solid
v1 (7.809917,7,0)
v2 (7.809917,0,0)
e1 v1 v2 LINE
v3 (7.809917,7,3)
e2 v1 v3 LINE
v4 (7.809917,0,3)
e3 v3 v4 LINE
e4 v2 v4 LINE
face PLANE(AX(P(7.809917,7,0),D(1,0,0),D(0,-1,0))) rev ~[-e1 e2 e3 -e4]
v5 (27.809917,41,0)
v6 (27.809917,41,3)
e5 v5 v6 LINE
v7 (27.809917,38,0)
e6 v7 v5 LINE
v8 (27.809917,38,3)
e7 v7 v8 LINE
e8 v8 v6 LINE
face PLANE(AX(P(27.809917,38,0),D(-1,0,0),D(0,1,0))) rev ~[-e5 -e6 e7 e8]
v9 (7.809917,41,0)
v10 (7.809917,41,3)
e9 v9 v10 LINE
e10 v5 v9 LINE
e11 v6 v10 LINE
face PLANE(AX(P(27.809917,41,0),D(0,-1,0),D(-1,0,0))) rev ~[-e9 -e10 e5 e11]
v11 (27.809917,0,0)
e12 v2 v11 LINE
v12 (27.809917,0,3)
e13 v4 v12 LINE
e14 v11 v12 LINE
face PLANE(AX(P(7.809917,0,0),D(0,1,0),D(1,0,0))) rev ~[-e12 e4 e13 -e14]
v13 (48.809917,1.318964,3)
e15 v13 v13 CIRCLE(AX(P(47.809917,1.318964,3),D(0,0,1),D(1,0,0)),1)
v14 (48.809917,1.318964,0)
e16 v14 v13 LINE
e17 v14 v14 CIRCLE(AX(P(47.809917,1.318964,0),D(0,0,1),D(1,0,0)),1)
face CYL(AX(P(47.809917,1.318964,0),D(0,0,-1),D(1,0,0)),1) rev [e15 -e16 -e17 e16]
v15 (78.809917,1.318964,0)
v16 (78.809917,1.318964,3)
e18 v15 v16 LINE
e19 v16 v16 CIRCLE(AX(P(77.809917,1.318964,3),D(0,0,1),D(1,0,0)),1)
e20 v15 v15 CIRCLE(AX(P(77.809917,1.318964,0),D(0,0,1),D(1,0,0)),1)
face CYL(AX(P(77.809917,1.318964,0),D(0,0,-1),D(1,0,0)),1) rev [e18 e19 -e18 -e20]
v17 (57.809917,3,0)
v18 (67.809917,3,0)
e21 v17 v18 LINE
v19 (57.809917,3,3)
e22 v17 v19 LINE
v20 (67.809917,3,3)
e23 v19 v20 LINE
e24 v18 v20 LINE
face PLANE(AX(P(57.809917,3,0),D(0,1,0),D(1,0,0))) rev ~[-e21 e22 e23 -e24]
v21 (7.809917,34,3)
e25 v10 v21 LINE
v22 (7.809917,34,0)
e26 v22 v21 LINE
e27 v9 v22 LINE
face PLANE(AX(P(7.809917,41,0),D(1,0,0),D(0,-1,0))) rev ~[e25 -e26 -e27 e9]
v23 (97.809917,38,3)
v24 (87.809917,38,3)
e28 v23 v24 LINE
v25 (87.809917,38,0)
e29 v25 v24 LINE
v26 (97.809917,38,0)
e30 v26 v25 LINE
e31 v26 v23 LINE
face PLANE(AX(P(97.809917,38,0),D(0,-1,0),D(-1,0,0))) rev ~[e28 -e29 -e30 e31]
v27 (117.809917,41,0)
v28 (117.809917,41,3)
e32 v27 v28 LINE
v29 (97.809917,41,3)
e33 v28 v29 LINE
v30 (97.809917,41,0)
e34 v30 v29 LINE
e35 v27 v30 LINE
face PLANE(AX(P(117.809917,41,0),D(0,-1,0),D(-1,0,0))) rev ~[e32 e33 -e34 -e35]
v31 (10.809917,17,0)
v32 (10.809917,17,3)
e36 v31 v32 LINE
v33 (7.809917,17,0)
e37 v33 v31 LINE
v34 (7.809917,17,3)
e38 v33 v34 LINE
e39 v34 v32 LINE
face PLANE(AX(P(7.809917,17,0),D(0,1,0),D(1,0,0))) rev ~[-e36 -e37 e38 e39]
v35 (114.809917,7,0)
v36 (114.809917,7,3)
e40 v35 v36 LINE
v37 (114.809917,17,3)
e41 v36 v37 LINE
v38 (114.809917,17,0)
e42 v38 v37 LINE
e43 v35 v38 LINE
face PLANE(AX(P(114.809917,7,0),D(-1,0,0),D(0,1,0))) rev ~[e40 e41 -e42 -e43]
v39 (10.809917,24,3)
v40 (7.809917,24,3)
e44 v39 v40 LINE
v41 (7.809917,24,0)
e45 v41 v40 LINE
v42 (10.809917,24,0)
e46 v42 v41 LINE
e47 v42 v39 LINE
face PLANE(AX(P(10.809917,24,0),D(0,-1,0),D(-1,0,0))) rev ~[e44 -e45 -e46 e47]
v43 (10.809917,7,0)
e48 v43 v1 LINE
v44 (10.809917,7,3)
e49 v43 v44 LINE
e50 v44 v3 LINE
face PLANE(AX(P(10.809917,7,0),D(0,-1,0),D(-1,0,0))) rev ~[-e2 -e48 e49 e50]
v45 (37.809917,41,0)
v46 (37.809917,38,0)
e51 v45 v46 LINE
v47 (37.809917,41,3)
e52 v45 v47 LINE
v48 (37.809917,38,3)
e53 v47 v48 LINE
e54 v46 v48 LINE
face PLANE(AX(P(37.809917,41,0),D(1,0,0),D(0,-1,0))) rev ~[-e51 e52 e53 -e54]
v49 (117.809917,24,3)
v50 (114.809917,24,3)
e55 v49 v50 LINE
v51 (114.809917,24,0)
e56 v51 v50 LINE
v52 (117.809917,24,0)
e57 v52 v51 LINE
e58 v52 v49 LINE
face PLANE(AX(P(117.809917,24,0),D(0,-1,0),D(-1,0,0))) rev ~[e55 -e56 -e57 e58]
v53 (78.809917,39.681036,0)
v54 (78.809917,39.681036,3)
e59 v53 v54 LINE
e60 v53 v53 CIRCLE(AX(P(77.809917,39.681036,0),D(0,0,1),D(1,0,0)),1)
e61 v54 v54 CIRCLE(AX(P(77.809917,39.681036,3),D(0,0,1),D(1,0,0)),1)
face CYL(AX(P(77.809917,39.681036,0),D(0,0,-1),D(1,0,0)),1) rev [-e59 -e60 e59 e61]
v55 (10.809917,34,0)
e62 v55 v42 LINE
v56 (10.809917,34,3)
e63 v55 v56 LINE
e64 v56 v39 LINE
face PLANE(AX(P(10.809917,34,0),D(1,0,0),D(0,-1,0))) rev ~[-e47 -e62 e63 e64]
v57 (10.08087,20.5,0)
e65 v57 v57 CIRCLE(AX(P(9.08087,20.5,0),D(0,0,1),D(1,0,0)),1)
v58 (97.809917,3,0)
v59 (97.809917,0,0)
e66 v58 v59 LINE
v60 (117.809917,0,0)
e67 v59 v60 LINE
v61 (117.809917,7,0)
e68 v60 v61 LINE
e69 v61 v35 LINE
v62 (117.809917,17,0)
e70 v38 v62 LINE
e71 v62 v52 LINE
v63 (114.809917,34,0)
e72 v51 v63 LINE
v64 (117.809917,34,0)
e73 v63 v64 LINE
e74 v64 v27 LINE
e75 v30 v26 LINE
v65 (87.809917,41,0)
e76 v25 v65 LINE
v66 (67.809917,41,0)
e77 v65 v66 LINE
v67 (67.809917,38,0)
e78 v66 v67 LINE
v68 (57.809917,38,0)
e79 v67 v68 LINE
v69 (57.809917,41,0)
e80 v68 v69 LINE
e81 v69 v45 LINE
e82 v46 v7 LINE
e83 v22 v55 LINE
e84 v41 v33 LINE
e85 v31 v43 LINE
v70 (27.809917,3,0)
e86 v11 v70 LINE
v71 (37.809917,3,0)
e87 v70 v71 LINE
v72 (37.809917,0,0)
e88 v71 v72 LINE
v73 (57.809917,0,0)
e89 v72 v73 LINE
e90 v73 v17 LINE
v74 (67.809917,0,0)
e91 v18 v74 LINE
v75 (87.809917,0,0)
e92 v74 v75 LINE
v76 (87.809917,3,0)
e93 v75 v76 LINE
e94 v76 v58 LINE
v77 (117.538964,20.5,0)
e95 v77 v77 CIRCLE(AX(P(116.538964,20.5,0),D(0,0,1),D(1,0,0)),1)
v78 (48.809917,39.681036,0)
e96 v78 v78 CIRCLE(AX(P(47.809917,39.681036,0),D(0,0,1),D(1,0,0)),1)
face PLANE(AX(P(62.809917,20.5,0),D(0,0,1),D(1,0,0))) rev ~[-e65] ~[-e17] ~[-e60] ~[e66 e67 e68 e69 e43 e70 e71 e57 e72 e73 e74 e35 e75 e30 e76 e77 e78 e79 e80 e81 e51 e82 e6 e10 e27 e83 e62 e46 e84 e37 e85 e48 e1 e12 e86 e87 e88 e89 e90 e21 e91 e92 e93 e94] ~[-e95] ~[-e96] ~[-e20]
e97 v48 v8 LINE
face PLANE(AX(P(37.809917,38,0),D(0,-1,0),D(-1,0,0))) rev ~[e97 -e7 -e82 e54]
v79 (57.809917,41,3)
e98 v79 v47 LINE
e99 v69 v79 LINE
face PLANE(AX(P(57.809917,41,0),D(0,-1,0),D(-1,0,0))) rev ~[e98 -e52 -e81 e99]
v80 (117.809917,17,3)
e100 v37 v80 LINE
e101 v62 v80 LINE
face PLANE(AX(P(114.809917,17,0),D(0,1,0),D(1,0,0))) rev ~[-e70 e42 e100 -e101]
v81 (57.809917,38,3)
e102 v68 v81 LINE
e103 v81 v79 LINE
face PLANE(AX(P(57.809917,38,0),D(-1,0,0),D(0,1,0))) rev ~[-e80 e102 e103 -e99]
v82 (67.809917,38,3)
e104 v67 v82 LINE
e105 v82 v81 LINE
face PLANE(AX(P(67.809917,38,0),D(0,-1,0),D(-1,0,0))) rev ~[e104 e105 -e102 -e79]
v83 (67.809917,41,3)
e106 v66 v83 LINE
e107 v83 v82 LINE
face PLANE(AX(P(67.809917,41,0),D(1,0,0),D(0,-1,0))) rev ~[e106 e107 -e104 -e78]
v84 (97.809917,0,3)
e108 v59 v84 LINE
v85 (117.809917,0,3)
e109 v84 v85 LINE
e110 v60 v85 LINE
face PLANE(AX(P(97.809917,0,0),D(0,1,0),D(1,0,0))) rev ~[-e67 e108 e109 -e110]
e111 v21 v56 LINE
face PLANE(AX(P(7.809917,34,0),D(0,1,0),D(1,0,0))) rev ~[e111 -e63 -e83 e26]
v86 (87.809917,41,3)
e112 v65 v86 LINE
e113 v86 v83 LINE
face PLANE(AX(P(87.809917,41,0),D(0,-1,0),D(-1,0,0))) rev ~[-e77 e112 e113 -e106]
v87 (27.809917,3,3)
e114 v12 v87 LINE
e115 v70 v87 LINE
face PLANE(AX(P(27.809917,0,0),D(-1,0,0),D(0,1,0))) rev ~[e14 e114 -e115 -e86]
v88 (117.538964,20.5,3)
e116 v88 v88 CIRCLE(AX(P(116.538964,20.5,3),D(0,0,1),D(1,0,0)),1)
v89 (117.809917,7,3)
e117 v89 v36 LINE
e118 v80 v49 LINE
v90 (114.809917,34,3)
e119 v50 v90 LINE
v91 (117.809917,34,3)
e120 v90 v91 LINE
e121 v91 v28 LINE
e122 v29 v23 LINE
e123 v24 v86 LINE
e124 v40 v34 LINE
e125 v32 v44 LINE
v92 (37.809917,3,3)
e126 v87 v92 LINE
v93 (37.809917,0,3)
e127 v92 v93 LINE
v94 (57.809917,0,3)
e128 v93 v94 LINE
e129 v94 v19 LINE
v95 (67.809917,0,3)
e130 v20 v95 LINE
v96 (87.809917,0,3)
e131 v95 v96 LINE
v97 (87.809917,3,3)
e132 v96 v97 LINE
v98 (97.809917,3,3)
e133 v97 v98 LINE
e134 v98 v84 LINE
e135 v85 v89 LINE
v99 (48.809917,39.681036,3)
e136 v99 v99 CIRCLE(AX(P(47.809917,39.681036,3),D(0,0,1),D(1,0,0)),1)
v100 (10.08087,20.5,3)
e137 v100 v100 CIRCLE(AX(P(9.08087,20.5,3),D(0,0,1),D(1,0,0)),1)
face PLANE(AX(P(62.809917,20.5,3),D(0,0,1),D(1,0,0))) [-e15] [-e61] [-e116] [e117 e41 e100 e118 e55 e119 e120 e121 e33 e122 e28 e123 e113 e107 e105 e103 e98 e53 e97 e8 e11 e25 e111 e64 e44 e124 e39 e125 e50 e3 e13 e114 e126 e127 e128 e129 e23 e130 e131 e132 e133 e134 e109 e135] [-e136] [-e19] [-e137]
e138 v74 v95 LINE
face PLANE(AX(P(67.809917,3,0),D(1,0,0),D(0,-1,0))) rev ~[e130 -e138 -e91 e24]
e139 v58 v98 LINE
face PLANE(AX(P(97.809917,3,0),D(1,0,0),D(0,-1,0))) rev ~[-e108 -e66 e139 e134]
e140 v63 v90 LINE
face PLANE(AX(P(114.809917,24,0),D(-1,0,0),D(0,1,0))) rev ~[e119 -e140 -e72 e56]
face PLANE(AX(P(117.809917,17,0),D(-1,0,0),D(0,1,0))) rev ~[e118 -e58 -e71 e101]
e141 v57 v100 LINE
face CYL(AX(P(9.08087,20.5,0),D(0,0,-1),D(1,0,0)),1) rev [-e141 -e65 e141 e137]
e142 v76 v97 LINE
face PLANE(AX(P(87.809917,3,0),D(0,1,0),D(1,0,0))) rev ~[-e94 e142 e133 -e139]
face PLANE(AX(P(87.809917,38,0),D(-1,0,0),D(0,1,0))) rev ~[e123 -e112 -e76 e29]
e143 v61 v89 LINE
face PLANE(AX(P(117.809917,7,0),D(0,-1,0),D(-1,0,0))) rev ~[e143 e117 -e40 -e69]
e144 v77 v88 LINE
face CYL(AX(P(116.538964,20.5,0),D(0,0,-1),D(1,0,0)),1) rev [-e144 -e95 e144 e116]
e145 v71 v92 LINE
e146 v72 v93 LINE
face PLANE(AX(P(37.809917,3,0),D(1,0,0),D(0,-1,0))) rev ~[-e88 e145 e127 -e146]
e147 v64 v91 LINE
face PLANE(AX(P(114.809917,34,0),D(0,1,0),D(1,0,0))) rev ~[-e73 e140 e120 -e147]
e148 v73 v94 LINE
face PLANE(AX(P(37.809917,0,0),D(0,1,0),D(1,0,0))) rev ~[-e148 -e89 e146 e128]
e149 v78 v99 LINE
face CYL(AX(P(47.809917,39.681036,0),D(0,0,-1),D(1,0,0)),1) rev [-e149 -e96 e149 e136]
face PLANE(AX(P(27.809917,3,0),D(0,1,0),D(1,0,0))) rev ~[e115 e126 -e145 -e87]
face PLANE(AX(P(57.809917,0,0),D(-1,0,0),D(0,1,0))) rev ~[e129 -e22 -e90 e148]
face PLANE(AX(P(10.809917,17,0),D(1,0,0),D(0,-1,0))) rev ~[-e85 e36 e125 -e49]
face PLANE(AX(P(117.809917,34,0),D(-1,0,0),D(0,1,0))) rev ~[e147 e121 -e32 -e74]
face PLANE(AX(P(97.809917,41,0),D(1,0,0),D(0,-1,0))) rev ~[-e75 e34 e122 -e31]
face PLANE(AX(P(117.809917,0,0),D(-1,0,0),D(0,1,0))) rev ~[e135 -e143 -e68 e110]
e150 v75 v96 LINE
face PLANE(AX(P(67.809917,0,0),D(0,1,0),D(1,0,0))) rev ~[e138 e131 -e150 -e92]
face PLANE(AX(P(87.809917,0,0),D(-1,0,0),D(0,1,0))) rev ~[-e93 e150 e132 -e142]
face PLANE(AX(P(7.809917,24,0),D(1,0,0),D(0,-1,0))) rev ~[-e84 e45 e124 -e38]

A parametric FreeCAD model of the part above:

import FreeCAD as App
import Part
import Sketcher

V = App.Vector
Q = App.Units.Quantity


def add_polygon(sketch, points):
    """Adds a closed chain of lines whose ends are joined by coincident constraints."""
    first, n = sketch.GeometryCount, len(points)
    for a, b in zip(points, points[1:] + points[:1]):
        sketch.addGeometry(Part.LineSegment(App.Vector(*a, 0), App.Vector(*b, 0)), False)
    for i in range(n):
        sketch.addConstraint(Sketcher.Constraint("Coincident", first + i, 2, first + (i + 1) % n, 1))

doc = App.newDocument("Part")
body = doc.addObject("PartDesign::Body", "Body")

sketch1 = doc.addObject("Sketcher::SketchObject", "Sketch")
body.addObject(sketch1)
sketch1.AttachmentSupport = (doc.XY_Plane, [""])
sketch1.MapMode = "FlatFace"
add_polygon(sketch1, [(7.8, 7), (7.8, 0), (27.8, 0), (27.8, 3), (37.8, 3), (37.8, 0), (57.8, 0), (57.8, 3), (67.8, 3), (67.8, 0), (87.8, 0), (87.8, 3), (97.8, 3), (97.8, 0), (117.8, 0), (117.8, 7), (114.8, 7), (114.8, 17), (117.8, 17), (117.8, 24), (114.8, 24), (114.8, 34), (117.8, 34), (117.8, 41), (97.8, 41), (97.8, 38), (87.8, 38), (87.8, 41), (67.8, 41), (67.8, 38), (57.8, 38), (57.8, 41), (37.8, 41), (37.8, 38), (27.8, 38), (27.8, 41), (7.8, 41), (7.8, 34), (10.8, 34), (10.8, 24), (7.8, 24), (7.8, 17), (10.8, 17), (10.8, 7)])
sketch1.addGeometry(Part.Circle(V(47.8, 1.3, 0), V(0, 0, 1), 1), False)
sketch1.addGeometry(Part.Circle(V(77.8, 1.3, 0), V(0, 0, 1), 1), False)
sketch1.addGeometry(Part.Circle(V(9.1, 20.5, 0), V(0, 0, 1), 1), False)
sketch1.addGeometry(Part.Circle(V(47.8, 39.7, 0), V(0, 0, 1), 1), False)
sketch1.addGeometry(Part.Circle(V(116.5, 20.5, 0), V(0, 0, 1), 1), False)
sketch1.addGeometry(Part.Circle(V(77.8, 39.7, 0), V(0, 0, 1), 1), False)
sketch1.addConstraint(Sketcher.Constraint("Vertical", 0))
sketch1.addConstraint(Sketcher.Constraint("Horizontal", 1))
sketch1.addConstraint(Sketcher.Constraint("Vertical", 2))
sketch1.addConstraint(Sketcher.Constraint("Horizontal", 3))
sketch1.addConstraint(Sketcher.Constraint("Vertical", 4))
sketch1.addConstraint(Sketcher.Constraint("Horizontal", 5))
sketch1.addConstraint(Sketcher.Constraint("Vertical", 6))
sketch1.addConstraint(Sketcher.Constraint("Horizontal", 7))
sketch1.addConstraint(Sketcher.Constraint("Vertical", 8))
sketch1.addConstraint(Sketcher.Constraint("Horizontal", 9))
sketch1.addConstraint(Sketcher.Constraint("Vertical", 10))
sketch1.addConstraint(Sketcher.Constraint("Horizontal", 11))
sketch1.addConstraint(Sketcher.Constraint("Vertical", 12))
sketch1.addConstraint(Sketcher.Constraint("Horizontal", 13))
sketch1.addConstraint(Sketcher.Constraint("Vertical", 14))
sketch1.addConstraint(Sketcher.Constraint("Horizontal", 15))
sketch1.addConstraint(Sketcher.Constraint("Vertical", 16))
sketch1.addConstraint(Sketcher.Constraint("Horizontal", 17))
sketch1.addConstraint(Sketcher.Constraint("Vertical", 18))
sketch1.addConstraint(Sketcher.Constraint("Horizontal", 19))
sketch1.addConstraint(Sketcher.Constraint("Vertical", 20))
sketch1.addConstraint(Sketcher.Constraint("Horizontal", 21))
sketch1.addConstraint(Sketcher.Constraint("Vertical", 22))
sketch1.addConstraint(Sketcher.Constraint("Horizontal", 23))
sketch1.addConstraint(Sketcher.Constraint("Vertical", 24))
sketch1.addConstraint(Sketcher.Constraint("Horizontal", 25))
sketch1.addConstraint(Sketcher.Constraint("Vertical", 26))
sketch1.addConstraint(Sketcher.Constraint("Horizontal", 27))
sketch1.addConstraint(Sketcher.Constraint("Vertical", 28))
sketch1.addConstraint(Sketcher.Constraint("Horizontal", 29))
sketch1.addConstraint(Sketcher.Constraint("Vertical", 30))
sketch1.addConstraint(Sketcher.Constraint("Horizontal", 31))
sketch1.addConstraint(Sketcher.Constraint("Vertical", 32))
sketch1.addConstraint(Sketcher.Constraint("Horizontal", 33))
sketch1.addConstraint(Sketcher.Constraint("Vertical", 34))
sketch1.addConstraint(Sketcher.Constraint("Horizontal", 35))
sketch1.addConstraint(Sketcher.Constraint("Vertical", 36))
sketch1.addConstraint(Sketcher.Constraint("Horizontal", 37))
sketch1.addConstraint(Sketcher.Constraint("Vertical", 38))
sketch1.addConstraint(Sketcher.Constraint("Horizontal", 39))
sketch1.addConstraint(Sketcher.Constraint("Vertical", 40))
sketch1.addConstraint(Sketcher.Constraint("Horizontal", 41))
sketch1.addConstraint(Sketcher.Constraint("Vertical", 42))
sketch1.addConstraint(Sketcher.Constraint("Horizontal", 43))
sketch1.addConstraint(Sketcher.Constraint("Equal", 44, 45))
sketch1.addConstraint(Sketcher.Constraint("Equal", 45, 46))
sketch1.addConstraint(Sketcher.Constraint("Equal", 46, 47))
sketch1.addConstraint(Sketcher.Constraint("Equal", 47, 48))
sketch1.addConstraint(Sketcher.Constraint("Equal", 48, 49))
sketch1.addConstraint(Sketcher.Constraint("PointOnObject", 0, 2, -1))
sketch1.addConstraint(Sketcher.Constraint("PointOnObject", 4, 2, -1))
sketch1.addConstraint(Sketcher.Constraint("PointOnObject", 8, 2, -1))
sketch1.addConstraint(Sketcher.Constraint("PointOnObject", 12, 2, -1))
sketch1.addConstraint(Sketcher.Constraint("Horizontal", 44, 3, 45, 3))
sketch1.addConstraint(Sketcher.Constraint("Horizontal", 46, 3, 48, 3))
sketch1.addConstraint(Sketcher.Constraint("Horizontal", 47, 3, 49, 3))
sketch1.addConstraint(Sketcher.Constraint("Horizontal", 3, 2, 6, 2))
sketch1.addConstraint(Sketcher.Constraint("Horizontal", 7, 2, 10, 2))
sketch1.addConstraint(Sketcher.Constraint("Horizontal", 23, 2, 26, 2))
sketch1.addConstraint(Sketcher.Constraint("Horizontal", 25, 2, 28, 2))
sketch1.addConstraint(Sketcher.Constraint("Horizontal", 27, 2, 30, 2))
sketch1.addConstraint(Sketcher.Constraint("Horizontal", 29, 2, 32, 2))
sketch1.addConstraint(Sketcher.Constraint("Horizontal", 31, 2, 34, 2))
sketch1.addConstraint(Sketcher.Constraint("Horizontal", 21, 2, 36, 2))
sketch1.addConstraint(Sketcher.Constraint("Horizontal", 19, 2, 38, 2))
sketch1.addConstraint(Sketcher.Constraint("Horizontal", 17, 2, 40, 2))
sketch1.addConstraint(Sketcher.Constraint("Horizontal", 15, 2, 42, 2))
sketch1.addConstraint(Sketcher.Constraint("Vertical", 44, 3, 47, 3))
sketch1.addConstraint(Sketcher.Constraint("Vertical", 45, 3, 49, 3))
sketch1.addConstraint(Sketcher.Constraint("Vertical", 14, 2, 17, 2))
sketch1.addConstraint(Sketcher.Constraint("Vertical", 16, 2, 19, 2))
sketch1.addConstraint(Sketcher.Constraint("Vertical", 18, 2, 21, 2))
sketch1.addConstraint(Sketcher.Constraint("Vertical", 12, 2, 23, 2))
sketch1.addConstraint(Sketcher.Constraint("Vertical", 10, 2, 25, 2))
sketch1.addConstraint(Sketcher.Constraint("Vertical", 8, 2, 27, 2))
sketch1.addConstraint(Sketcher.Constraint("Vertical", 6, 2, 29, 2))
sketch1.addConstraint(Sketcher.Constraint("Vertical", 4, 2, 31, 2))
sketch1.addConstraint(Sketcher.Constraint("Vertical", 2, 2, 33, 2))
sketch1.addConstraint(Sketcher.Constraint("Vertical", 0, 2, 35, 2))
sketch1.addConstraint(Sketcher.Constraint("Vertical", 36, 2, 39, 2))
sketch1.addConstraint(Sketcher.Constraint("Vertical", 38, 2, 41, 2))
sketch1.addConstraint(Sketcher.Constraint("Equal", 1, 5))
sketch1.addConstraint(Sketcher.Constraint("Equal", 3, 7))
sketch1.addConstraint(Sketcher.Constraint("Equal", 5, 9))
sketch1.addConstraint(Sketcher.Constraint("Equal", 7, 11))
sketch1.addConstraint(Sketcher.Constraint("Equal", 9, 13))
sketch1.addConstraint(Sketcher.Constraint("Equal", 21, 37))
sketch1.addConstraint(Sketcher.Constraint("Equal", 43, 2))
sketch1.addConstraint(Sketcher.Constraint("Equal", 33, 16))
sketch1.addConstraint(Sketcher.Constraint("Equal", 14, 18))
sketch1.addConstraint(Sketcher.Constraint("Equal", 16, 20))
sketch1.addConstraint(Sketcher.Constraint("Equal", 18, 22))
sketch1.addConstraint(Sketcher.Constraint("Equal", 12, 24))
sketch1.addConstraint(Sketcher.Constraint("Diameter", 44, Q("2 mm")))
sketch1.addConstraint(Sketcher.Constraint("DistanceX", 1, 1, 1, 2, Q("20 mm")))
sketch1.addConstraint(Sketcher.Constraint("DistanceX", 3, 1, 3, 2, Q("10 mm")))
sketch1.addConstraint(Sketcher.Constraint("DistanceX", 15, 2, 15, 1, Q("3 mm")))
sketch1.addConstraint(Sketcher.Constraint("DistanceY", 0, 2, 0, 1, Q("7 mm")))
sketch1.addConstraint(Sketcher.Constraint("DistanceX", 44, 3, 45, 3, Q("30 mm")))
sketch1.addConstraint(Sketcher.Constraint("DistanceX", 0, 2, 44, 3, Q("40 mm")))
sketch1.addConstraint(Sketcher.Constraint("DistanceY", -1, 1, 46, 3, Q("20.5 mm")))
sketch1.addConstraint(Sketcher.Constraint("DistanceX", -1, 1, 46, 3, Q("9.08087 mm")))
sketch1.addConstraint(Sketcher.Constraint("DistanceY", 44, 3, 47, 3, Q("38.362072 mm")))
sketch1.addConstraint(Sketcher.Constraint("DistanceX", -1, 1, 44, 3, Q("47.809917 mm")))
sketch1.addConstraint(Sketcher.Constraint("DistanceY", -1, 1, 44, 3, Q("1.318964 mm")))
sketch1.addConstraint(Sketcher.Constraint("DistanceX", -1, 1, 48, 3, Q("116.538964 mm")))
pad1 = doc.addObject("PartDesign::Pad", "Pad")
body.addObject(pad1)
pad1.Profile = sketch1
pad1.Length = 3

doc.recompute()
